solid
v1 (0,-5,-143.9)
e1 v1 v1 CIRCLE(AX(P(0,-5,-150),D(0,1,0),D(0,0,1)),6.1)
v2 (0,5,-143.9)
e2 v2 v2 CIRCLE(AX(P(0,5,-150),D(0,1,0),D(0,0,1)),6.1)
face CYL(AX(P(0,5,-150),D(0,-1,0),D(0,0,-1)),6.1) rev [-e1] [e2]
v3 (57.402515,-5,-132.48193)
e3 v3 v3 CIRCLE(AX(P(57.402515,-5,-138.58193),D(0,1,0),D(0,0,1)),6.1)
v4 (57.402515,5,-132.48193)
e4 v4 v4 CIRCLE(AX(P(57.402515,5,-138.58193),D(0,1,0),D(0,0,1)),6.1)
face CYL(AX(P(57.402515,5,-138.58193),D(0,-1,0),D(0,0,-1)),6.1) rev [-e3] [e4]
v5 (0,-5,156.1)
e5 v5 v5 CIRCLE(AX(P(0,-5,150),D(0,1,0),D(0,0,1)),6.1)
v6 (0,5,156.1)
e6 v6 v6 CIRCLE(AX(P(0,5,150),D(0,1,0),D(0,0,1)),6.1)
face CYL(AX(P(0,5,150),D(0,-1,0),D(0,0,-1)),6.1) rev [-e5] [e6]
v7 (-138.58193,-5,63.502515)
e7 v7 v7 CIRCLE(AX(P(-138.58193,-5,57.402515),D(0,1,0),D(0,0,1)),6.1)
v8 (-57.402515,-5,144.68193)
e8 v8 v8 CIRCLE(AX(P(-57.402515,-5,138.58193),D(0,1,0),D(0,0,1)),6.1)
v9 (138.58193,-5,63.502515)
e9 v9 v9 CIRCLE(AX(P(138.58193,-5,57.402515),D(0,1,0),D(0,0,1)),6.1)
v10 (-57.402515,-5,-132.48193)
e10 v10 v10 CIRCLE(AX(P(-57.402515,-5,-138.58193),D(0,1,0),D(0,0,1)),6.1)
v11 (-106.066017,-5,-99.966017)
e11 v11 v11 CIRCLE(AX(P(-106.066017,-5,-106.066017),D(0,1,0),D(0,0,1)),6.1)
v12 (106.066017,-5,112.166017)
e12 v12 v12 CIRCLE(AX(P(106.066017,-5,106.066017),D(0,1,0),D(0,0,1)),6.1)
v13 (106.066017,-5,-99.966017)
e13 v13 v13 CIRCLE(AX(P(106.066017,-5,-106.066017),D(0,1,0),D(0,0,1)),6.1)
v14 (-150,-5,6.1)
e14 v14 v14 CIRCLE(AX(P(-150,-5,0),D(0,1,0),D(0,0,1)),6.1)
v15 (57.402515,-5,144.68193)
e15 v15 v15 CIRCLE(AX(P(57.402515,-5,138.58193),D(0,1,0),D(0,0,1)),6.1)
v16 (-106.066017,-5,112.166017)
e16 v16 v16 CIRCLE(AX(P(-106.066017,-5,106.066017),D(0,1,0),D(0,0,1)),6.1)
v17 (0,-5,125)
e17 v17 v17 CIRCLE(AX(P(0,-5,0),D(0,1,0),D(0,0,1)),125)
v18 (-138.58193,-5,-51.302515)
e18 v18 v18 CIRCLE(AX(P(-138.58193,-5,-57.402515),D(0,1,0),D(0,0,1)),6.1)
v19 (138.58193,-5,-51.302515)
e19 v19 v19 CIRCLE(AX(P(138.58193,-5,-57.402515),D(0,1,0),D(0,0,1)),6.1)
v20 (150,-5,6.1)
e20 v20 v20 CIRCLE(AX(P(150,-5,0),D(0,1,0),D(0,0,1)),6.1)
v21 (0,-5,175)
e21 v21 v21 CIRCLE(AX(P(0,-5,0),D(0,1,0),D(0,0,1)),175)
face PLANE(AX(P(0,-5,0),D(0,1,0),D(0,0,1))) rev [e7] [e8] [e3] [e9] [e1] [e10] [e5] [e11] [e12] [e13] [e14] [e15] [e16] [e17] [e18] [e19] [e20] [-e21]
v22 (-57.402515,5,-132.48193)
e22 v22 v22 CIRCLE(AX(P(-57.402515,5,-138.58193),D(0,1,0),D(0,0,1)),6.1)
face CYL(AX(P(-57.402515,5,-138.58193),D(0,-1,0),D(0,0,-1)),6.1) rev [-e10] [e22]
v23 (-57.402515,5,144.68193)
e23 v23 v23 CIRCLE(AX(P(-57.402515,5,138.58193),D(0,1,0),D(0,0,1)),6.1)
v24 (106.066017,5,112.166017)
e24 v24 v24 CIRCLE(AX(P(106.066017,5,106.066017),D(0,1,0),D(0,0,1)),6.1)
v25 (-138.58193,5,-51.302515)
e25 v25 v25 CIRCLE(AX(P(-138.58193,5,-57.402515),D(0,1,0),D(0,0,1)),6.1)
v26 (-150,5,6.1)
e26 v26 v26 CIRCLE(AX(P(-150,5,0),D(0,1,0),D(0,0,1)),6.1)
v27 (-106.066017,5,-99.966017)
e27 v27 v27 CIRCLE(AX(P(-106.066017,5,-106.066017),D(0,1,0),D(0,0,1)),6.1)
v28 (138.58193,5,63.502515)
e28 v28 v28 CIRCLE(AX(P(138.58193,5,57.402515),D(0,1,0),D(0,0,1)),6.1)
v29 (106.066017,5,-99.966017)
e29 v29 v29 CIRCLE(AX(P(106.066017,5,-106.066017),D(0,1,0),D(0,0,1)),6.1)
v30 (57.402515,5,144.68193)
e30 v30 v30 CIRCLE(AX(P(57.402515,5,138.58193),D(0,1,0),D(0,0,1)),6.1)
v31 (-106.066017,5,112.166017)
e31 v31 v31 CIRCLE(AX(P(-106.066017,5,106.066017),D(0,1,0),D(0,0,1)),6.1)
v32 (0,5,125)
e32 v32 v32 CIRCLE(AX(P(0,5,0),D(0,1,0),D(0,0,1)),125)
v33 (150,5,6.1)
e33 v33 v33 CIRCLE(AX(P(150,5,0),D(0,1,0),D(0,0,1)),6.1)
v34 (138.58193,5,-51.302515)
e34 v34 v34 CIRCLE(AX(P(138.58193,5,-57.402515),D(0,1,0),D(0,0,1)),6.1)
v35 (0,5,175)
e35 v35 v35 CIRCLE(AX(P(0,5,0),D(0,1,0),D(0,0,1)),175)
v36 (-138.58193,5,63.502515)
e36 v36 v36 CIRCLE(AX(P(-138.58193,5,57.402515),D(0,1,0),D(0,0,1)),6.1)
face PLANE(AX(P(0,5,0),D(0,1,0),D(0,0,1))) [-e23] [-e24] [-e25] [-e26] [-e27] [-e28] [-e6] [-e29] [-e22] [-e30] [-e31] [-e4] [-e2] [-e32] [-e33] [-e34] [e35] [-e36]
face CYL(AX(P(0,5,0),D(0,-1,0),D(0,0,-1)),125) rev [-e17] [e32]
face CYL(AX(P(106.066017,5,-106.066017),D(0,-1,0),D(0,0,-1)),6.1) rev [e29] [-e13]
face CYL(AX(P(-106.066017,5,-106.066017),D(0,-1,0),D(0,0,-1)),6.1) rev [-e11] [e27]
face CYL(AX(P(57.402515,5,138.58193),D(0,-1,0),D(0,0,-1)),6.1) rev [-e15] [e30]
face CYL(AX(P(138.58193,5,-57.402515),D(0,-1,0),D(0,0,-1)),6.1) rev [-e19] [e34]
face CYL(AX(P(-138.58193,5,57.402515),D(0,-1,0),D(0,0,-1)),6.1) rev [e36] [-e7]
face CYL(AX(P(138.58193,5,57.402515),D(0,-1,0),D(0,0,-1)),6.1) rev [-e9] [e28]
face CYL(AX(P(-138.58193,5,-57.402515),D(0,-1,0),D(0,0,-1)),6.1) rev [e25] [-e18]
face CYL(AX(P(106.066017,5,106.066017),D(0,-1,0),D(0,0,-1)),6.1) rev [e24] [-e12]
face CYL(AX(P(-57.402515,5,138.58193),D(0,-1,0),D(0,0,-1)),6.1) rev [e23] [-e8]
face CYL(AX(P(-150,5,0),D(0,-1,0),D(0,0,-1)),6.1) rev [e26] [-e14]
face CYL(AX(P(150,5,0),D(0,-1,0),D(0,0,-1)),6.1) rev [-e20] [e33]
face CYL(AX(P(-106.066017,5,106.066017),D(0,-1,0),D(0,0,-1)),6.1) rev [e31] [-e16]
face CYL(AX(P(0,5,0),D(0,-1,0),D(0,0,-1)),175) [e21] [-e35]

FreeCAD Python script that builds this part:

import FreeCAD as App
import Part
import Sketcher
from FreeCAD import Vector
Q = App.Units.Quantity

doc = App.newDocument("Part")
body = doc.addObject("PartDesign::Body", "Body")

# Sketch on XZ plane
sketch1 = body.newObject("Sketcher::SketchObject", "Sketch")
sketch1.AttachmentSupport = (doc.getObject("XZ_Plane"), [""])
sketch1.MapMode = "FlatFace"
sketch1.addGeometry(Part.Circle(Vector(0, 0, 0), Vector(0, 0, 1), 175), False)
sketch1.addGeometry(Part.Circle(Vector(-106, -106, 0), Vector(0, 0, 1), 6), False)
sketch1.addGeometry(Part.Circle(Vector(-139, -57, 0), Vector(0, 0, 1), 6), False)
sketch1.addGeometry(Part.Circle(Vector(-57, -139, 0), Vector(0, 0, 1), 6), False)
sketch1.addGeometry(Part.Circle(Vector(0, -150, 0), Vector(0, 0, 1), 6), False)
sketch1.addGeometry(Part.Circle(Vector(-150, 0, 0), Vector(0, 0, 1), 6), False)
sketch1.addGeometry(Part.Circle(Vector(-139, 57, 0), Vector(0, 0, 1), 6), False)
sketch1.addGeometry(Part.Circle(Vector(-106, 106, 0), Vector(0, 0, 1), 6), False)
sketch1.addGeometry(Part.Circle(Vector(0, 0, 0), Vector(0, 0, 1), 125), False)
sketch1.addGeometry(Part.Circle(Vector(-57, 139, 0), Vector(0, 0, 1), 6), False)
sketch1.addGeometry(Part.Circle(Vector(57, -139, 0), Vector(0, 0, 1), 6), False)
sketch1.addGeometry(Part.Circle(Vector(106, -106, 0), Vector(0, 0, 1), 6), False)
sketch1.addGeometry(Part.Circle(Vector(139, -57, 0), Vector(0, 0, 1), 6), False)
sketch1.addGeometry(Part.Circle(Vector(150, 0, 0), Vector(0, 0, 1), 6), False)
sketch1.addGeometry(Part.Circle(Vector(0, 150, 0), Vector(0, 0, 1), 6), False)
sketch1.addGeometry(Part.Circle(Vector(57, 139, 0), Vector(0, 0, 1), 6), False)
sketch1.addGeometry(Part.Circle(Vector(139, 57, 0), Vector(0, 0, 1), 6), False)
sketch1.addGeometry(Part.Circle(Vector(106, 106, 0), Vector(0, 0, 1), 6), False)
sketch1.addConstraint(Sketcher.Constraint("Coincident", 0, 3, -1, 1))
sketch1.addConstraint(Sketcher.Constraint("Coincident", 8, 3, -1, 1))
sketch1.addConstraint(Sketcher.Constraint("Equal", 1, 2))
sketch1.addConstraint(Sketcher.Constraint("Equal", 2, 3))
sketch1.addConstraint(Sketcher.Constraint("Equal", 3, 4))
sketch1.addConstraint(Sketcher.Constraint("Equal", 4, 5))
sketch1.addConstraint(Sketcher.Constraint("Equal", 5, 6))
sketch1.addConstraint(Sketcher.Constraint("Equal", 6, 7))
sketch1.addConstraint(Sketcher.Constraint("Equal", 7, 9))
sketch1.addConstraint(Sketcher.Constraint("Equal", 9, 10))
sketch1.addConstraint(Sketcher.Constraint("Equal", 10, 11))
sketch1.addConstraint(Sketcher.Constraint("Equal", 11, 12))
sketch1.addConstraint(Sketcher.Constraint("Equal", 12, 13))
sketch1.addConstraint(Sketcher.Constraint("Equal", 13, 14))
sketch1.addConstraint(Sketcher.Constraint("Equal", 14, 15))
sketch1.addConstraint(Sketcher.Constraint("Equal", 15, 16))
sketch1.addConstraint(Sketcher.Constraint("Equal", 16, 17))
sketch1.addConstraint(Sketcher.Constraint("Symmetric", 9, 3, 10, 3, -1, 1))
sketch1.addConstraint(Sketcher.Constraint("Symmetric", 7, 3, 11, 3, -1, 1))
sketch1.addConstraint(Sketcher.Constraint("Symmetric", 6, 3, 12, 3, -1, 1))
sketch1.addConstraint(Sketcher.Constraint("Symmetric", 5, 3, 13, 3, -1, 1))
sketch1.addConstraint(Sketcher.Constraint("Symmetric", 4, 3, 14, 3, -1, 1))
sketch1.addConstraint(Sketcher.Constraint("Symmetric", 3, 3, 15, 3, -1, 1))
sketch1.addConstraint(Sketcher.Constraint("Symmetric", 2, 3, 16, 3, -1, 1))
sketch1.addConstraint(Sketcher.Constraint("Symmetric", 1, 3, 17, 3, -1, 1))
sketch1.addConstraint(Sketcher.Constraint("Symmetric", 3, 3, 10, 3, -2))
sketch1.addConstraint(Sketcher.Constraint("Symmetric", 1, 3, 11, 3, -2))
sketch1.addConstraint(Sketcher.Constraint("Symmetric", 2, 3, 12, 3, -2))
sketch1.addConstraint(Sketcher.Constraint("PointOnObject", 4, 3, -2))
sketch1.addConstraint(Sketcher.Constraint("PointOnObject", 5, 3, -1))
sketch1.addConstraint(Sketcher.Constraint("Diameter", 0, Q("350 mm")))
sketch1.addConstraint(Sketcher.Constraint("Diameter", 8, Q("250 mm")))
sketch1.addConstraint(Sketcher.Constraint("Diameter", 1, Q("12.2 mm")))
sketch1.addConstraint(Sketcher.Constraint("DistanceY", 4, 3, -1, 1, Q("150 mm")))
sketch1.addConstraint(Sketcher.Constraint("DistanceX", 5, 3, -1, 1, Q("150 mm")))
sketch1.addConstraint(Sketcher.Constraint("DistanceX", 2, 3, -1, 1, Q("138.58193 mm")))
sketch1.addConstraint(Sketcher.Constraint("DistanceY", 3, 3, -1, 1, Q("138.58193 mm")))
sketch1.addConstraint(Sketcher.Constraint("DistanceY", 2, 3, 6, 3, Q("114.80503 mm")))
sketch1.addConstraint(Sketcher.Constraint("DistanceX", 3, 3, 10, 3, Q("114.80503 mm")))
sketch1.addConstraint(Sketcher.Constraint("DistanceX", 1, 3, -1, 1, Q("106.066017 mm")))
sketch1.addConstraint(Sketcher.Constraint("DistanceY", 1, 3, -1, 1, Q("106.066017 mm")))
pad1 = body.newObject("PartDesign::Pad", "Pad")
pad1.Profile = sketch1
pad1.Length = 10
pad1.Midplane = True

doc.recompute()
